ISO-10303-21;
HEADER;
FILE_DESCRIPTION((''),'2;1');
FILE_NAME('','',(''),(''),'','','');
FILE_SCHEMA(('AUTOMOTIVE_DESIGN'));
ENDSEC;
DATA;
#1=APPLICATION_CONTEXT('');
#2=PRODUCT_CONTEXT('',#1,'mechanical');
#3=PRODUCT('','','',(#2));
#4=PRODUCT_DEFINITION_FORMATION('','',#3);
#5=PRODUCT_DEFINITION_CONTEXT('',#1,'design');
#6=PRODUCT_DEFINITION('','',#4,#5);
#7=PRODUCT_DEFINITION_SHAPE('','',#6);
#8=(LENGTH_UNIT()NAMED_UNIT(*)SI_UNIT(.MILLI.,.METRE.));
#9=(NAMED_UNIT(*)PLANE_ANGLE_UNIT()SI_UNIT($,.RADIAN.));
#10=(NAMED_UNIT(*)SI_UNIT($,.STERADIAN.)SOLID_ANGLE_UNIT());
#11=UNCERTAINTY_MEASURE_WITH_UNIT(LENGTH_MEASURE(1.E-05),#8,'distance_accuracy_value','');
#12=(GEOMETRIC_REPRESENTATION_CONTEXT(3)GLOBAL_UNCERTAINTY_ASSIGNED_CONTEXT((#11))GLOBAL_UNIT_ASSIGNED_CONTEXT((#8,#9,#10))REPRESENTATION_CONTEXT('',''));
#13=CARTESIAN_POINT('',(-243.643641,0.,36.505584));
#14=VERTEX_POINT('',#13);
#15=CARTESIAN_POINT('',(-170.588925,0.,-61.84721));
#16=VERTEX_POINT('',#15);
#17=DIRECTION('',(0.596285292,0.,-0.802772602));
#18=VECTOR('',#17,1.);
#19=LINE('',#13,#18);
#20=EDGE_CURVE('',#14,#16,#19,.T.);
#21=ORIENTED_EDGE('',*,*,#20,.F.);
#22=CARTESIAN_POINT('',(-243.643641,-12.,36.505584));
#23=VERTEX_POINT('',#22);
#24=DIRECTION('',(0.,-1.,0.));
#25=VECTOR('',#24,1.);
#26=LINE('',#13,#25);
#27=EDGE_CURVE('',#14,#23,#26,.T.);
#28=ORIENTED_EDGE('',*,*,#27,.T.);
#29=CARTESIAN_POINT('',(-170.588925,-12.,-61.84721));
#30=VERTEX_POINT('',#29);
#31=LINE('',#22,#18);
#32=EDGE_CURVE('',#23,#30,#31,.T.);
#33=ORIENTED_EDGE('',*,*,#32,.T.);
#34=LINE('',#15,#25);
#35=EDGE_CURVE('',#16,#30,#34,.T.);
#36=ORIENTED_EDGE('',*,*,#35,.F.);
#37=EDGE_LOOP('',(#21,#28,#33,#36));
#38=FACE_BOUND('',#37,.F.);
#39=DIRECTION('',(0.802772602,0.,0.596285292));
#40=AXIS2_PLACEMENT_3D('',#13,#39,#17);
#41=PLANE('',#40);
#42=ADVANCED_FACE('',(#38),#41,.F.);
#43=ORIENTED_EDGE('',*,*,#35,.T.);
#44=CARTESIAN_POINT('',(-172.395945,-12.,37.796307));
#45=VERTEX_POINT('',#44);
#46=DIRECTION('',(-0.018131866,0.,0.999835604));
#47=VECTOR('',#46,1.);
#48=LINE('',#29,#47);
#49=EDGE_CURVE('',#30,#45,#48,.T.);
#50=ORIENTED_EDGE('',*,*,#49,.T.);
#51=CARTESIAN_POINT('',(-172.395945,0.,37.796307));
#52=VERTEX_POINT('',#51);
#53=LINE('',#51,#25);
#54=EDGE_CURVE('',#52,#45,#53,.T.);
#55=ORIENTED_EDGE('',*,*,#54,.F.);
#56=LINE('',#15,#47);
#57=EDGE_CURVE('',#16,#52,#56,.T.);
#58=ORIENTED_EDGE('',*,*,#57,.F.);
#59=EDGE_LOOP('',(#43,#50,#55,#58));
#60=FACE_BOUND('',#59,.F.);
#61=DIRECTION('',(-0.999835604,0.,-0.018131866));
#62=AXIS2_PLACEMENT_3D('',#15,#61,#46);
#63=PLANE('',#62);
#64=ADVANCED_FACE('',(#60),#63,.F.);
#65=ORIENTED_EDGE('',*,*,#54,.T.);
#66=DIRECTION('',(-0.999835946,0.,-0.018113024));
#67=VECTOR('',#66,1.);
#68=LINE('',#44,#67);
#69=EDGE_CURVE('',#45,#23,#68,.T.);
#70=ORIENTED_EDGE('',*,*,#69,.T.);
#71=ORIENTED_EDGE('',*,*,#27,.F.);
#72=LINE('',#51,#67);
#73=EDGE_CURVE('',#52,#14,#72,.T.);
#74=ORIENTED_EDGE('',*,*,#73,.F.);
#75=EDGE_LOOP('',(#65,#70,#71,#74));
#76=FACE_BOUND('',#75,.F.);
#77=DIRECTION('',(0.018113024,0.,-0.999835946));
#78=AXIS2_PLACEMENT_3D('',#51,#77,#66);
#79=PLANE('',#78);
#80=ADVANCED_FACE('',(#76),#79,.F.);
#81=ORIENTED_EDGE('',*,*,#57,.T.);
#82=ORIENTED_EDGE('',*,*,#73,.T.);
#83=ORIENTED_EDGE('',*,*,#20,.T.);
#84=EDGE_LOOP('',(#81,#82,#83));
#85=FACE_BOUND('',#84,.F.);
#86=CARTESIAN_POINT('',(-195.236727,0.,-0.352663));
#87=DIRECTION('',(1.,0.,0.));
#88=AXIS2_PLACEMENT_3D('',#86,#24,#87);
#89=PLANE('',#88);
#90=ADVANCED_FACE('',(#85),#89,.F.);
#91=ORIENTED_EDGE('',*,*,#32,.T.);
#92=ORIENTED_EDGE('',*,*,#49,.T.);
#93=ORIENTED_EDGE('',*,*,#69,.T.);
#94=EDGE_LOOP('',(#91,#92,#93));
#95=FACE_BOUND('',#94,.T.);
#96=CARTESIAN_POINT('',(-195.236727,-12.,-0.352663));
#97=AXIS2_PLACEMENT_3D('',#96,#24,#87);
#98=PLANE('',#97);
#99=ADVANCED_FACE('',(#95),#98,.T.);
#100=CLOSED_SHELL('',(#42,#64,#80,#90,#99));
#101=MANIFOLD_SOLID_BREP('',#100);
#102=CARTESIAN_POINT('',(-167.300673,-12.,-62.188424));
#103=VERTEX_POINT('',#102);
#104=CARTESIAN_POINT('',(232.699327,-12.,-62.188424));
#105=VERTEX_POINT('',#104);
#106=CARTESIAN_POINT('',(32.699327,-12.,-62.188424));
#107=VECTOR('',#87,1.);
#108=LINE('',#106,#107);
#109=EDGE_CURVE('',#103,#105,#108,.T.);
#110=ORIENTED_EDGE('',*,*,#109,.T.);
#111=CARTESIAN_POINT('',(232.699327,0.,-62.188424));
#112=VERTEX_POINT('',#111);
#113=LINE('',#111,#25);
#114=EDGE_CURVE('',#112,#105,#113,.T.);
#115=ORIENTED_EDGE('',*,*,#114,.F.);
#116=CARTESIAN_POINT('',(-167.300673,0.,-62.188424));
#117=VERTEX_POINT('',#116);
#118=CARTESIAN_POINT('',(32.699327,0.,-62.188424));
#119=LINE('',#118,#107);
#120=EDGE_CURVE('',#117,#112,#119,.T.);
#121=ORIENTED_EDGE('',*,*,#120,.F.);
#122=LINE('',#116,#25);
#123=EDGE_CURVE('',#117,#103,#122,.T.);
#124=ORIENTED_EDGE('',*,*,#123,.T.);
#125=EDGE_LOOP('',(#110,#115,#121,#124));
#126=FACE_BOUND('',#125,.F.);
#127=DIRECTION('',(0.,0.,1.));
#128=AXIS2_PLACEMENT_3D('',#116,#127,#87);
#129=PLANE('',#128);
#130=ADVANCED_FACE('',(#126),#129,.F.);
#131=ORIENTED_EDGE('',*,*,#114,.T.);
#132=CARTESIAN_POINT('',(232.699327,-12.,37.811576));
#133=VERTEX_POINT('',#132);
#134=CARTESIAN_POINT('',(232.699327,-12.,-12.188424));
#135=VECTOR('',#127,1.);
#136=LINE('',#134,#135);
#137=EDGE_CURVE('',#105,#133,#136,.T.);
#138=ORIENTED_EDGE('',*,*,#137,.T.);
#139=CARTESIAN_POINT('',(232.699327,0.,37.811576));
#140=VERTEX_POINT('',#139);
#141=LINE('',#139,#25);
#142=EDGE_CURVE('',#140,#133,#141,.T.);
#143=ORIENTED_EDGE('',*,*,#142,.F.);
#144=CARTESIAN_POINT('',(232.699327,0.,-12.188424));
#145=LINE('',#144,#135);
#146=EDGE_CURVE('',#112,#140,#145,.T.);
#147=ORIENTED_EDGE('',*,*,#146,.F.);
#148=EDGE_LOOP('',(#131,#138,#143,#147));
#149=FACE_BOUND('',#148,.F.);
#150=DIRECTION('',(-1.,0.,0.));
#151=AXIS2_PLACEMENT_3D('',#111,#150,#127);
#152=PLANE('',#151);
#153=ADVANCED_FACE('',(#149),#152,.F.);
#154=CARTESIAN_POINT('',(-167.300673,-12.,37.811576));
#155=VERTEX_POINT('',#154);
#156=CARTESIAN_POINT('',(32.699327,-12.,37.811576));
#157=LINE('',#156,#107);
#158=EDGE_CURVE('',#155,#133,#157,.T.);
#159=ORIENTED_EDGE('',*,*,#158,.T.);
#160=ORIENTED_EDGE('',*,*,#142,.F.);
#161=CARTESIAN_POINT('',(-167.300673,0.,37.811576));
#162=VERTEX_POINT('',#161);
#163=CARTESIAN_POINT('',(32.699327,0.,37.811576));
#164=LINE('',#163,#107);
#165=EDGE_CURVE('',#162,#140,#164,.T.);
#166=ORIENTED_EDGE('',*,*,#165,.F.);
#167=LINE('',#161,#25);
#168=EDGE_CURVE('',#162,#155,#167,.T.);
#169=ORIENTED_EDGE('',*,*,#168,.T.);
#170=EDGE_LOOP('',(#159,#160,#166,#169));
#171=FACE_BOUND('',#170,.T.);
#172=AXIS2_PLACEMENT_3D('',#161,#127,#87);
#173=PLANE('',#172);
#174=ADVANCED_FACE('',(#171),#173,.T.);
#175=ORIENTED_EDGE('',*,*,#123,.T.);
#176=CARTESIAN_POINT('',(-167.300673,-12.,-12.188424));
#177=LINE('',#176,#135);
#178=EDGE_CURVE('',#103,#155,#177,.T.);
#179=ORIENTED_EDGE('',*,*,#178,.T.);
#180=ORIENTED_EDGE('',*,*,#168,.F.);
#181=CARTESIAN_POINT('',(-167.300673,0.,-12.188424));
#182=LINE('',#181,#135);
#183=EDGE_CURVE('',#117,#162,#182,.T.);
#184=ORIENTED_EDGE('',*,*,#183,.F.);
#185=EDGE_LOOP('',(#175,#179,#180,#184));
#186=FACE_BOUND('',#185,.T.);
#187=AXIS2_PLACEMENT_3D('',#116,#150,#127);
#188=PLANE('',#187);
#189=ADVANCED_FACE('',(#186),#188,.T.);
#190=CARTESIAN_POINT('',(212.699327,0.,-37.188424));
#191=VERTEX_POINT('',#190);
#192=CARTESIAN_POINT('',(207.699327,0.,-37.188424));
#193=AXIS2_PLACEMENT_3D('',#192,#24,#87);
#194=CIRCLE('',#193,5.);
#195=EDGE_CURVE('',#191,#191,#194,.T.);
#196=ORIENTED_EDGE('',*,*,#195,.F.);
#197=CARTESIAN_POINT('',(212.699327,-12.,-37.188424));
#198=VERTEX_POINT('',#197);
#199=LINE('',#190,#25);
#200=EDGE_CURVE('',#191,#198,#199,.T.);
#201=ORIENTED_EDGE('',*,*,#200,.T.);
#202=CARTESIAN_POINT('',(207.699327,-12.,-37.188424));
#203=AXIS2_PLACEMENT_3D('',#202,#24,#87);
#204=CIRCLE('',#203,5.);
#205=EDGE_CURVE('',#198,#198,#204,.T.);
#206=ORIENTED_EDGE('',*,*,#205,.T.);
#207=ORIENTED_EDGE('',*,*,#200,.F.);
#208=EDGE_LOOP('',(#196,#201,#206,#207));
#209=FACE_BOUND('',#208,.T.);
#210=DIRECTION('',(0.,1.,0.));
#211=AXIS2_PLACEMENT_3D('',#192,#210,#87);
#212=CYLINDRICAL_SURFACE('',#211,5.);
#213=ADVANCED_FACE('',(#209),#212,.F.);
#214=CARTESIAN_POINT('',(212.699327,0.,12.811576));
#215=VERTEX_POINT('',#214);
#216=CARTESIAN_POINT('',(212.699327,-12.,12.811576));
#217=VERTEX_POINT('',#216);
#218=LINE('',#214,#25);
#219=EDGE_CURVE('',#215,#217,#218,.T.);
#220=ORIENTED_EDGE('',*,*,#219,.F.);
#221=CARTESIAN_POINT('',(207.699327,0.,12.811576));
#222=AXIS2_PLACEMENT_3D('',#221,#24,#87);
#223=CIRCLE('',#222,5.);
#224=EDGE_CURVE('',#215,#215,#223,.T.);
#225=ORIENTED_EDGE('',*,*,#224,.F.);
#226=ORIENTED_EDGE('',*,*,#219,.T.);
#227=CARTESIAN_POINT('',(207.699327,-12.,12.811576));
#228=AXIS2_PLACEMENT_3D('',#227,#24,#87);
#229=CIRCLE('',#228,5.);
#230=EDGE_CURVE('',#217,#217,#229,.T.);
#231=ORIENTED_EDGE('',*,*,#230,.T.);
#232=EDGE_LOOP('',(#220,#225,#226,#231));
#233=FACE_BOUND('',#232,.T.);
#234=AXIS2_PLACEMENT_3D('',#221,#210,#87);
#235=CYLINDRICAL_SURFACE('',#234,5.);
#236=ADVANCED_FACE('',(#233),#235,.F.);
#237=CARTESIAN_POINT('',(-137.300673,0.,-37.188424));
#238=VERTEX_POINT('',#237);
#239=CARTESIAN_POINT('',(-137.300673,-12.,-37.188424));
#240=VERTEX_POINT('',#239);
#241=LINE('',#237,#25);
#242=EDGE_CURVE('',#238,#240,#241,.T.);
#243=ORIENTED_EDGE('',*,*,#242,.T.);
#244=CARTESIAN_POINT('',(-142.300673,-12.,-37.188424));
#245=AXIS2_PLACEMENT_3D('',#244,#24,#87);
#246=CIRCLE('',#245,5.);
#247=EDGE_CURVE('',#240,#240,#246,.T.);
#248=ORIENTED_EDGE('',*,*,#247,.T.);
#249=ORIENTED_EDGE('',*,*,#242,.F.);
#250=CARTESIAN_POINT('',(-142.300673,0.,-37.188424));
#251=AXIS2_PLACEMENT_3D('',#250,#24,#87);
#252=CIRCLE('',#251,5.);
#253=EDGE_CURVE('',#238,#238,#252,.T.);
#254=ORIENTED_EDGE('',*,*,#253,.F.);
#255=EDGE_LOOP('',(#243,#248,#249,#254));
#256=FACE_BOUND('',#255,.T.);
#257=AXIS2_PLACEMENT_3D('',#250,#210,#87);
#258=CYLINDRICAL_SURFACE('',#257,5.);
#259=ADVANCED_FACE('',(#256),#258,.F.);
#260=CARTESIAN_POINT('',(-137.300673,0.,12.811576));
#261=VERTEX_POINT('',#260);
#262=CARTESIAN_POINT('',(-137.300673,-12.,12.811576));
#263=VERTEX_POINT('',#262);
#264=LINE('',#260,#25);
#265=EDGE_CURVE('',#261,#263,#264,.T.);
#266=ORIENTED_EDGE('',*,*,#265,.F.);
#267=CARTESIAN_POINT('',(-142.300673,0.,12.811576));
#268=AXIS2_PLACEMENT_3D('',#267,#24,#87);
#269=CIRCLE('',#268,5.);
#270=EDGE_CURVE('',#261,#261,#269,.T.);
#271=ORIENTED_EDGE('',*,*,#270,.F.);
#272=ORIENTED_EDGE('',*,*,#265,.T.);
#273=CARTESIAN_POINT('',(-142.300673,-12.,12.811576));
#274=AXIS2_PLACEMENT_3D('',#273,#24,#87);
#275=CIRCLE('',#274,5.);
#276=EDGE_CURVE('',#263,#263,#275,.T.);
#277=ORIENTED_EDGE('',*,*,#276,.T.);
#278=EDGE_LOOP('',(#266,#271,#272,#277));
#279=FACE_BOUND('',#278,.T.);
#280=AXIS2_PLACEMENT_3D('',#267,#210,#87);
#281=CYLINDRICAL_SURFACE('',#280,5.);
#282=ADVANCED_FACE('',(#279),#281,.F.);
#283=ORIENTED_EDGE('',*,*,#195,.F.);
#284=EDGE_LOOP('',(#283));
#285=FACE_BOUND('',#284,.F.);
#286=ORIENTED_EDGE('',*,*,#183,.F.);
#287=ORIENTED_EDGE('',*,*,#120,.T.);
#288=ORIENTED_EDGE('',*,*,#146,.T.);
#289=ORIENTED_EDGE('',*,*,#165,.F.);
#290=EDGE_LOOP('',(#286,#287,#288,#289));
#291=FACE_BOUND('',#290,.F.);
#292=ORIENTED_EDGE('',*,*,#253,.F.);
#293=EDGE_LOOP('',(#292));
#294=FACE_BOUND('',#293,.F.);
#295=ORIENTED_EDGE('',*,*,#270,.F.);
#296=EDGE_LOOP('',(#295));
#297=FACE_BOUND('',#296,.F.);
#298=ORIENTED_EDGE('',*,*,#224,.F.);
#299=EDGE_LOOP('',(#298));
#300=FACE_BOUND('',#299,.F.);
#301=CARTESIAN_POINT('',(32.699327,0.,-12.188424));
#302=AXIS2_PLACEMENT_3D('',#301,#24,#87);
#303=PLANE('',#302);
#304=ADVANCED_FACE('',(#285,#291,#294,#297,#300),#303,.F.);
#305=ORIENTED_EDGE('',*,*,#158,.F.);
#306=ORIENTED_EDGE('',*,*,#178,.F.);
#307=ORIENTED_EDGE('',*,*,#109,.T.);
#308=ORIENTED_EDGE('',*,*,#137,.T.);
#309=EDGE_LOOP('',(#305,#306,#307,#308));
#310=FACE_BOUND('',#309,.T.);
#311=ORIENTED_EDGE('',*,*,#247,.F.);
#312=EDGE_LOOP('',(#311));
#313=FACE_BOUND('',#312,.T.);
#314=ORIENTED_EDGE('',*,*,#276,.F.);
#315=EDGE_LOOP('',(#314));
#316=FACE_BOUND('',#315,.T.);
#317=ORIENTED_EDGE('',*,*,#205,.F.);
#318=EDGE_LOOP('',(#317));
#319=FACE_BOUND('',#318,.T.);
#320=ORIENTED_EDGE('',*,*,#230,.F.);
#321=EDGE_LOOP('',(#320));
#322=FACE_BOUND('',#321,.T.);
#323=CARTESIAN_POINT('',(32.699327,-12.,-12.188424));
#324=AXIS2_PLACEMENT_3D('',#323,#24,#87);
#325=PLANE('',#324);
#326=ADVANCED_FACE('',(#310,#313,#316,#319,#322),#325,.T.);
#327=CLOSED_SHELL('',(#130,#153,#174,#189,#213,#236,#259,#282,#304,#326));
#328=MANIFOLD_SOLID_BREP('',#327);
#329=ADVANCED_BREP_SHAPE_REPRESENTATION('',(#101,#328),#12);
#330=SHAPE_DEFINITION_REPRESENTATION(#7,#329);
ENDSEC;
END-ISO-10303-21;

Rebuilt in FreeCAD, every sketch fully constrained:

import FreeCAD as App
import Part
import Sketcher

doc = App.newDocument("Part")
body = doc.addObject("PartDesign::Body", "Body")

sketch1 = body.newObject("Sketcher::SketchObject", "Sketch")
sketch1.AttachmentSupport = (doc.getObject("XZ_Plane"), [""])
sketch1.MapMode = "FlatFace"
sketch1.addGeometry([
    Part.LineSegment(App.Vector(-167.300673, 37.811576, 0), App.Vector(-167.300673, -62.188424, 0)),
    Part.LineSegment(App.Vector(-167.300673, -62.188424, 0), App.Vector(232.699327, -62.188424, 0)),
    Part.LineSegment(App.Vector(232.699327, -62.188424, 0), App.Vector(232.699327, 37.811576, 0)),
    Part.LineSegment(App.Vector(232.699327, 37.811576, 0), App.Vector(-167.300673, 37.811576, 0)),
    Part.Circle(App.Vector(-142.300673, -37.188424, 0), App.Vector(0, 0, 1), 5),
    Part.Circle(App.Vector(207.699327, -37.188424, 0), App.Vector(0, 0, 1), 5),
    Part.Circle(App.Vector(-142.300673, 12.811576, 0), App.Vector(0, 0, 1), 5),
    Part.Circle(App.Vector(207.699327, 12.811576, 0), App.Vector(0, 0, 1), 5),
], False)
sketch1.addConstraint([
    Sketcher.Constraint("Coincident", 0, 2, 1, 1),
    Sketcher.Constraint("Coincident", 1, 2, 2, 1),
    Sketcher.Constraint("Coincident", 2, 2, 3, 1),
    Sketcher.Constraint("Coincident", 3, 2, 0, 1),
    Sketcher.Constraint("Vertical", 0),
    Sketcher.Constraint("Horizontal", 1),
    Sketcher.Constraint("Vertical", 2),
    Sketcher.Constraint("Horizontal", 3),
    Sketcher.Constraint("Equal", 4, 5),
    Sketcher.Constraint("Equal", 5, 6),
    Sketcher.Constraint("Equal", 6, 7),
    Sketcher.Constraint("Horizontal", 4, 3, 5, 3),
    Sketcher.Constraint("Horizontal", 6, 3, 7, 3),
    Sketcher.Constraint("Vertical", 4, 3, 6, 3),
    Sketcher.Constraint("Vertical", 5, 3, 7, 3),
    Sketcher.Constraint("Diameter", 4, 10.0),
    Sketcher.Constraint("DistanceX", 1, 1, 1, 2, 400.0),
    Sketcher.Constraint("DistanceY", 0, 2, 0, 1, 100.0),
    Sketcher.Constraint("DistanceX", 4, 3, 5, 3, 350.0),
    Sketcher.Constraint("DistanceY", 4, 3, 6, 3, 50.0),
    Sketcher.Constraint("DistanceX", 0, 2, 4, 3, 25.0),
    Sketcher.Constraint("DistanceY", 0, 2, 4, 3, 25.0),
    Sketcher.Constraint("DistanceX", 4, 3, -1, 1, 142.300673),
    Sketcher.Constraint("DistanceY", 4, 3, -1, 1, 37.188424),
])
pad1 = body.newObject("PartDesign::Pad", "Pad")
pad1.Profile = sketch1
pad1.Length = 12
body2 = doc.addObject("PartDesign::Body", "Body001")

sketch2 = body2.newObject("Sketcher::SketchObject", "Sketch001")
sketch2.AttachmentSupport = (doc.getObject("XZ_Plane001"), [""])
sketch2.MapMode = "FlatFace"
sketch2.addGeometry([
    Part.LineSegment(App.Vector(-170.588925, -61.84721, 0), App.Vector(-172.395945, 37.796307, 0)),
    Part.LineSegment(App.Vector(-172.395945, 37.796307, 0), App.Vector(-243.643641, 36.505584, 0)),
    Part.LineSegment(App.Vector(-243.643641, 36.505584, 0), App.Vector(-170.588925, -61.84721, 0)),
], False)
sketch2.addConstraint([
    Sketcher.Constraint("Coincident", 0, 2, 1, 1),
    Sketcher.Constraint("Coincident", 1, 2, 2, 1),
    Sketcher.Constraint("Coincident", 2, 2, 0, 1),
    Sketcher.Constraint("Distance", 0, 99.659901),
    Sketcher.Constraint("Distance", 2, 122.516381),
    Sketcher.Constraint("DistanceX", 1, 2, -1, 1, 243.643641),
    Sketcher.Constraint("DistanceY", 2, 2, -1, 1, 61.84721),
    Sketcher.Constraint("DistanceX", 0, 2, 2, 2, 1.80702),
    Sketcher.Constraint("Distance", 1, 71.259386),
])
pad2 = body2.newObject("PartDesign::Pad", "Pad001")
pad2.Profile = sketch2
pad2.Length = 12

doc.recompute()
